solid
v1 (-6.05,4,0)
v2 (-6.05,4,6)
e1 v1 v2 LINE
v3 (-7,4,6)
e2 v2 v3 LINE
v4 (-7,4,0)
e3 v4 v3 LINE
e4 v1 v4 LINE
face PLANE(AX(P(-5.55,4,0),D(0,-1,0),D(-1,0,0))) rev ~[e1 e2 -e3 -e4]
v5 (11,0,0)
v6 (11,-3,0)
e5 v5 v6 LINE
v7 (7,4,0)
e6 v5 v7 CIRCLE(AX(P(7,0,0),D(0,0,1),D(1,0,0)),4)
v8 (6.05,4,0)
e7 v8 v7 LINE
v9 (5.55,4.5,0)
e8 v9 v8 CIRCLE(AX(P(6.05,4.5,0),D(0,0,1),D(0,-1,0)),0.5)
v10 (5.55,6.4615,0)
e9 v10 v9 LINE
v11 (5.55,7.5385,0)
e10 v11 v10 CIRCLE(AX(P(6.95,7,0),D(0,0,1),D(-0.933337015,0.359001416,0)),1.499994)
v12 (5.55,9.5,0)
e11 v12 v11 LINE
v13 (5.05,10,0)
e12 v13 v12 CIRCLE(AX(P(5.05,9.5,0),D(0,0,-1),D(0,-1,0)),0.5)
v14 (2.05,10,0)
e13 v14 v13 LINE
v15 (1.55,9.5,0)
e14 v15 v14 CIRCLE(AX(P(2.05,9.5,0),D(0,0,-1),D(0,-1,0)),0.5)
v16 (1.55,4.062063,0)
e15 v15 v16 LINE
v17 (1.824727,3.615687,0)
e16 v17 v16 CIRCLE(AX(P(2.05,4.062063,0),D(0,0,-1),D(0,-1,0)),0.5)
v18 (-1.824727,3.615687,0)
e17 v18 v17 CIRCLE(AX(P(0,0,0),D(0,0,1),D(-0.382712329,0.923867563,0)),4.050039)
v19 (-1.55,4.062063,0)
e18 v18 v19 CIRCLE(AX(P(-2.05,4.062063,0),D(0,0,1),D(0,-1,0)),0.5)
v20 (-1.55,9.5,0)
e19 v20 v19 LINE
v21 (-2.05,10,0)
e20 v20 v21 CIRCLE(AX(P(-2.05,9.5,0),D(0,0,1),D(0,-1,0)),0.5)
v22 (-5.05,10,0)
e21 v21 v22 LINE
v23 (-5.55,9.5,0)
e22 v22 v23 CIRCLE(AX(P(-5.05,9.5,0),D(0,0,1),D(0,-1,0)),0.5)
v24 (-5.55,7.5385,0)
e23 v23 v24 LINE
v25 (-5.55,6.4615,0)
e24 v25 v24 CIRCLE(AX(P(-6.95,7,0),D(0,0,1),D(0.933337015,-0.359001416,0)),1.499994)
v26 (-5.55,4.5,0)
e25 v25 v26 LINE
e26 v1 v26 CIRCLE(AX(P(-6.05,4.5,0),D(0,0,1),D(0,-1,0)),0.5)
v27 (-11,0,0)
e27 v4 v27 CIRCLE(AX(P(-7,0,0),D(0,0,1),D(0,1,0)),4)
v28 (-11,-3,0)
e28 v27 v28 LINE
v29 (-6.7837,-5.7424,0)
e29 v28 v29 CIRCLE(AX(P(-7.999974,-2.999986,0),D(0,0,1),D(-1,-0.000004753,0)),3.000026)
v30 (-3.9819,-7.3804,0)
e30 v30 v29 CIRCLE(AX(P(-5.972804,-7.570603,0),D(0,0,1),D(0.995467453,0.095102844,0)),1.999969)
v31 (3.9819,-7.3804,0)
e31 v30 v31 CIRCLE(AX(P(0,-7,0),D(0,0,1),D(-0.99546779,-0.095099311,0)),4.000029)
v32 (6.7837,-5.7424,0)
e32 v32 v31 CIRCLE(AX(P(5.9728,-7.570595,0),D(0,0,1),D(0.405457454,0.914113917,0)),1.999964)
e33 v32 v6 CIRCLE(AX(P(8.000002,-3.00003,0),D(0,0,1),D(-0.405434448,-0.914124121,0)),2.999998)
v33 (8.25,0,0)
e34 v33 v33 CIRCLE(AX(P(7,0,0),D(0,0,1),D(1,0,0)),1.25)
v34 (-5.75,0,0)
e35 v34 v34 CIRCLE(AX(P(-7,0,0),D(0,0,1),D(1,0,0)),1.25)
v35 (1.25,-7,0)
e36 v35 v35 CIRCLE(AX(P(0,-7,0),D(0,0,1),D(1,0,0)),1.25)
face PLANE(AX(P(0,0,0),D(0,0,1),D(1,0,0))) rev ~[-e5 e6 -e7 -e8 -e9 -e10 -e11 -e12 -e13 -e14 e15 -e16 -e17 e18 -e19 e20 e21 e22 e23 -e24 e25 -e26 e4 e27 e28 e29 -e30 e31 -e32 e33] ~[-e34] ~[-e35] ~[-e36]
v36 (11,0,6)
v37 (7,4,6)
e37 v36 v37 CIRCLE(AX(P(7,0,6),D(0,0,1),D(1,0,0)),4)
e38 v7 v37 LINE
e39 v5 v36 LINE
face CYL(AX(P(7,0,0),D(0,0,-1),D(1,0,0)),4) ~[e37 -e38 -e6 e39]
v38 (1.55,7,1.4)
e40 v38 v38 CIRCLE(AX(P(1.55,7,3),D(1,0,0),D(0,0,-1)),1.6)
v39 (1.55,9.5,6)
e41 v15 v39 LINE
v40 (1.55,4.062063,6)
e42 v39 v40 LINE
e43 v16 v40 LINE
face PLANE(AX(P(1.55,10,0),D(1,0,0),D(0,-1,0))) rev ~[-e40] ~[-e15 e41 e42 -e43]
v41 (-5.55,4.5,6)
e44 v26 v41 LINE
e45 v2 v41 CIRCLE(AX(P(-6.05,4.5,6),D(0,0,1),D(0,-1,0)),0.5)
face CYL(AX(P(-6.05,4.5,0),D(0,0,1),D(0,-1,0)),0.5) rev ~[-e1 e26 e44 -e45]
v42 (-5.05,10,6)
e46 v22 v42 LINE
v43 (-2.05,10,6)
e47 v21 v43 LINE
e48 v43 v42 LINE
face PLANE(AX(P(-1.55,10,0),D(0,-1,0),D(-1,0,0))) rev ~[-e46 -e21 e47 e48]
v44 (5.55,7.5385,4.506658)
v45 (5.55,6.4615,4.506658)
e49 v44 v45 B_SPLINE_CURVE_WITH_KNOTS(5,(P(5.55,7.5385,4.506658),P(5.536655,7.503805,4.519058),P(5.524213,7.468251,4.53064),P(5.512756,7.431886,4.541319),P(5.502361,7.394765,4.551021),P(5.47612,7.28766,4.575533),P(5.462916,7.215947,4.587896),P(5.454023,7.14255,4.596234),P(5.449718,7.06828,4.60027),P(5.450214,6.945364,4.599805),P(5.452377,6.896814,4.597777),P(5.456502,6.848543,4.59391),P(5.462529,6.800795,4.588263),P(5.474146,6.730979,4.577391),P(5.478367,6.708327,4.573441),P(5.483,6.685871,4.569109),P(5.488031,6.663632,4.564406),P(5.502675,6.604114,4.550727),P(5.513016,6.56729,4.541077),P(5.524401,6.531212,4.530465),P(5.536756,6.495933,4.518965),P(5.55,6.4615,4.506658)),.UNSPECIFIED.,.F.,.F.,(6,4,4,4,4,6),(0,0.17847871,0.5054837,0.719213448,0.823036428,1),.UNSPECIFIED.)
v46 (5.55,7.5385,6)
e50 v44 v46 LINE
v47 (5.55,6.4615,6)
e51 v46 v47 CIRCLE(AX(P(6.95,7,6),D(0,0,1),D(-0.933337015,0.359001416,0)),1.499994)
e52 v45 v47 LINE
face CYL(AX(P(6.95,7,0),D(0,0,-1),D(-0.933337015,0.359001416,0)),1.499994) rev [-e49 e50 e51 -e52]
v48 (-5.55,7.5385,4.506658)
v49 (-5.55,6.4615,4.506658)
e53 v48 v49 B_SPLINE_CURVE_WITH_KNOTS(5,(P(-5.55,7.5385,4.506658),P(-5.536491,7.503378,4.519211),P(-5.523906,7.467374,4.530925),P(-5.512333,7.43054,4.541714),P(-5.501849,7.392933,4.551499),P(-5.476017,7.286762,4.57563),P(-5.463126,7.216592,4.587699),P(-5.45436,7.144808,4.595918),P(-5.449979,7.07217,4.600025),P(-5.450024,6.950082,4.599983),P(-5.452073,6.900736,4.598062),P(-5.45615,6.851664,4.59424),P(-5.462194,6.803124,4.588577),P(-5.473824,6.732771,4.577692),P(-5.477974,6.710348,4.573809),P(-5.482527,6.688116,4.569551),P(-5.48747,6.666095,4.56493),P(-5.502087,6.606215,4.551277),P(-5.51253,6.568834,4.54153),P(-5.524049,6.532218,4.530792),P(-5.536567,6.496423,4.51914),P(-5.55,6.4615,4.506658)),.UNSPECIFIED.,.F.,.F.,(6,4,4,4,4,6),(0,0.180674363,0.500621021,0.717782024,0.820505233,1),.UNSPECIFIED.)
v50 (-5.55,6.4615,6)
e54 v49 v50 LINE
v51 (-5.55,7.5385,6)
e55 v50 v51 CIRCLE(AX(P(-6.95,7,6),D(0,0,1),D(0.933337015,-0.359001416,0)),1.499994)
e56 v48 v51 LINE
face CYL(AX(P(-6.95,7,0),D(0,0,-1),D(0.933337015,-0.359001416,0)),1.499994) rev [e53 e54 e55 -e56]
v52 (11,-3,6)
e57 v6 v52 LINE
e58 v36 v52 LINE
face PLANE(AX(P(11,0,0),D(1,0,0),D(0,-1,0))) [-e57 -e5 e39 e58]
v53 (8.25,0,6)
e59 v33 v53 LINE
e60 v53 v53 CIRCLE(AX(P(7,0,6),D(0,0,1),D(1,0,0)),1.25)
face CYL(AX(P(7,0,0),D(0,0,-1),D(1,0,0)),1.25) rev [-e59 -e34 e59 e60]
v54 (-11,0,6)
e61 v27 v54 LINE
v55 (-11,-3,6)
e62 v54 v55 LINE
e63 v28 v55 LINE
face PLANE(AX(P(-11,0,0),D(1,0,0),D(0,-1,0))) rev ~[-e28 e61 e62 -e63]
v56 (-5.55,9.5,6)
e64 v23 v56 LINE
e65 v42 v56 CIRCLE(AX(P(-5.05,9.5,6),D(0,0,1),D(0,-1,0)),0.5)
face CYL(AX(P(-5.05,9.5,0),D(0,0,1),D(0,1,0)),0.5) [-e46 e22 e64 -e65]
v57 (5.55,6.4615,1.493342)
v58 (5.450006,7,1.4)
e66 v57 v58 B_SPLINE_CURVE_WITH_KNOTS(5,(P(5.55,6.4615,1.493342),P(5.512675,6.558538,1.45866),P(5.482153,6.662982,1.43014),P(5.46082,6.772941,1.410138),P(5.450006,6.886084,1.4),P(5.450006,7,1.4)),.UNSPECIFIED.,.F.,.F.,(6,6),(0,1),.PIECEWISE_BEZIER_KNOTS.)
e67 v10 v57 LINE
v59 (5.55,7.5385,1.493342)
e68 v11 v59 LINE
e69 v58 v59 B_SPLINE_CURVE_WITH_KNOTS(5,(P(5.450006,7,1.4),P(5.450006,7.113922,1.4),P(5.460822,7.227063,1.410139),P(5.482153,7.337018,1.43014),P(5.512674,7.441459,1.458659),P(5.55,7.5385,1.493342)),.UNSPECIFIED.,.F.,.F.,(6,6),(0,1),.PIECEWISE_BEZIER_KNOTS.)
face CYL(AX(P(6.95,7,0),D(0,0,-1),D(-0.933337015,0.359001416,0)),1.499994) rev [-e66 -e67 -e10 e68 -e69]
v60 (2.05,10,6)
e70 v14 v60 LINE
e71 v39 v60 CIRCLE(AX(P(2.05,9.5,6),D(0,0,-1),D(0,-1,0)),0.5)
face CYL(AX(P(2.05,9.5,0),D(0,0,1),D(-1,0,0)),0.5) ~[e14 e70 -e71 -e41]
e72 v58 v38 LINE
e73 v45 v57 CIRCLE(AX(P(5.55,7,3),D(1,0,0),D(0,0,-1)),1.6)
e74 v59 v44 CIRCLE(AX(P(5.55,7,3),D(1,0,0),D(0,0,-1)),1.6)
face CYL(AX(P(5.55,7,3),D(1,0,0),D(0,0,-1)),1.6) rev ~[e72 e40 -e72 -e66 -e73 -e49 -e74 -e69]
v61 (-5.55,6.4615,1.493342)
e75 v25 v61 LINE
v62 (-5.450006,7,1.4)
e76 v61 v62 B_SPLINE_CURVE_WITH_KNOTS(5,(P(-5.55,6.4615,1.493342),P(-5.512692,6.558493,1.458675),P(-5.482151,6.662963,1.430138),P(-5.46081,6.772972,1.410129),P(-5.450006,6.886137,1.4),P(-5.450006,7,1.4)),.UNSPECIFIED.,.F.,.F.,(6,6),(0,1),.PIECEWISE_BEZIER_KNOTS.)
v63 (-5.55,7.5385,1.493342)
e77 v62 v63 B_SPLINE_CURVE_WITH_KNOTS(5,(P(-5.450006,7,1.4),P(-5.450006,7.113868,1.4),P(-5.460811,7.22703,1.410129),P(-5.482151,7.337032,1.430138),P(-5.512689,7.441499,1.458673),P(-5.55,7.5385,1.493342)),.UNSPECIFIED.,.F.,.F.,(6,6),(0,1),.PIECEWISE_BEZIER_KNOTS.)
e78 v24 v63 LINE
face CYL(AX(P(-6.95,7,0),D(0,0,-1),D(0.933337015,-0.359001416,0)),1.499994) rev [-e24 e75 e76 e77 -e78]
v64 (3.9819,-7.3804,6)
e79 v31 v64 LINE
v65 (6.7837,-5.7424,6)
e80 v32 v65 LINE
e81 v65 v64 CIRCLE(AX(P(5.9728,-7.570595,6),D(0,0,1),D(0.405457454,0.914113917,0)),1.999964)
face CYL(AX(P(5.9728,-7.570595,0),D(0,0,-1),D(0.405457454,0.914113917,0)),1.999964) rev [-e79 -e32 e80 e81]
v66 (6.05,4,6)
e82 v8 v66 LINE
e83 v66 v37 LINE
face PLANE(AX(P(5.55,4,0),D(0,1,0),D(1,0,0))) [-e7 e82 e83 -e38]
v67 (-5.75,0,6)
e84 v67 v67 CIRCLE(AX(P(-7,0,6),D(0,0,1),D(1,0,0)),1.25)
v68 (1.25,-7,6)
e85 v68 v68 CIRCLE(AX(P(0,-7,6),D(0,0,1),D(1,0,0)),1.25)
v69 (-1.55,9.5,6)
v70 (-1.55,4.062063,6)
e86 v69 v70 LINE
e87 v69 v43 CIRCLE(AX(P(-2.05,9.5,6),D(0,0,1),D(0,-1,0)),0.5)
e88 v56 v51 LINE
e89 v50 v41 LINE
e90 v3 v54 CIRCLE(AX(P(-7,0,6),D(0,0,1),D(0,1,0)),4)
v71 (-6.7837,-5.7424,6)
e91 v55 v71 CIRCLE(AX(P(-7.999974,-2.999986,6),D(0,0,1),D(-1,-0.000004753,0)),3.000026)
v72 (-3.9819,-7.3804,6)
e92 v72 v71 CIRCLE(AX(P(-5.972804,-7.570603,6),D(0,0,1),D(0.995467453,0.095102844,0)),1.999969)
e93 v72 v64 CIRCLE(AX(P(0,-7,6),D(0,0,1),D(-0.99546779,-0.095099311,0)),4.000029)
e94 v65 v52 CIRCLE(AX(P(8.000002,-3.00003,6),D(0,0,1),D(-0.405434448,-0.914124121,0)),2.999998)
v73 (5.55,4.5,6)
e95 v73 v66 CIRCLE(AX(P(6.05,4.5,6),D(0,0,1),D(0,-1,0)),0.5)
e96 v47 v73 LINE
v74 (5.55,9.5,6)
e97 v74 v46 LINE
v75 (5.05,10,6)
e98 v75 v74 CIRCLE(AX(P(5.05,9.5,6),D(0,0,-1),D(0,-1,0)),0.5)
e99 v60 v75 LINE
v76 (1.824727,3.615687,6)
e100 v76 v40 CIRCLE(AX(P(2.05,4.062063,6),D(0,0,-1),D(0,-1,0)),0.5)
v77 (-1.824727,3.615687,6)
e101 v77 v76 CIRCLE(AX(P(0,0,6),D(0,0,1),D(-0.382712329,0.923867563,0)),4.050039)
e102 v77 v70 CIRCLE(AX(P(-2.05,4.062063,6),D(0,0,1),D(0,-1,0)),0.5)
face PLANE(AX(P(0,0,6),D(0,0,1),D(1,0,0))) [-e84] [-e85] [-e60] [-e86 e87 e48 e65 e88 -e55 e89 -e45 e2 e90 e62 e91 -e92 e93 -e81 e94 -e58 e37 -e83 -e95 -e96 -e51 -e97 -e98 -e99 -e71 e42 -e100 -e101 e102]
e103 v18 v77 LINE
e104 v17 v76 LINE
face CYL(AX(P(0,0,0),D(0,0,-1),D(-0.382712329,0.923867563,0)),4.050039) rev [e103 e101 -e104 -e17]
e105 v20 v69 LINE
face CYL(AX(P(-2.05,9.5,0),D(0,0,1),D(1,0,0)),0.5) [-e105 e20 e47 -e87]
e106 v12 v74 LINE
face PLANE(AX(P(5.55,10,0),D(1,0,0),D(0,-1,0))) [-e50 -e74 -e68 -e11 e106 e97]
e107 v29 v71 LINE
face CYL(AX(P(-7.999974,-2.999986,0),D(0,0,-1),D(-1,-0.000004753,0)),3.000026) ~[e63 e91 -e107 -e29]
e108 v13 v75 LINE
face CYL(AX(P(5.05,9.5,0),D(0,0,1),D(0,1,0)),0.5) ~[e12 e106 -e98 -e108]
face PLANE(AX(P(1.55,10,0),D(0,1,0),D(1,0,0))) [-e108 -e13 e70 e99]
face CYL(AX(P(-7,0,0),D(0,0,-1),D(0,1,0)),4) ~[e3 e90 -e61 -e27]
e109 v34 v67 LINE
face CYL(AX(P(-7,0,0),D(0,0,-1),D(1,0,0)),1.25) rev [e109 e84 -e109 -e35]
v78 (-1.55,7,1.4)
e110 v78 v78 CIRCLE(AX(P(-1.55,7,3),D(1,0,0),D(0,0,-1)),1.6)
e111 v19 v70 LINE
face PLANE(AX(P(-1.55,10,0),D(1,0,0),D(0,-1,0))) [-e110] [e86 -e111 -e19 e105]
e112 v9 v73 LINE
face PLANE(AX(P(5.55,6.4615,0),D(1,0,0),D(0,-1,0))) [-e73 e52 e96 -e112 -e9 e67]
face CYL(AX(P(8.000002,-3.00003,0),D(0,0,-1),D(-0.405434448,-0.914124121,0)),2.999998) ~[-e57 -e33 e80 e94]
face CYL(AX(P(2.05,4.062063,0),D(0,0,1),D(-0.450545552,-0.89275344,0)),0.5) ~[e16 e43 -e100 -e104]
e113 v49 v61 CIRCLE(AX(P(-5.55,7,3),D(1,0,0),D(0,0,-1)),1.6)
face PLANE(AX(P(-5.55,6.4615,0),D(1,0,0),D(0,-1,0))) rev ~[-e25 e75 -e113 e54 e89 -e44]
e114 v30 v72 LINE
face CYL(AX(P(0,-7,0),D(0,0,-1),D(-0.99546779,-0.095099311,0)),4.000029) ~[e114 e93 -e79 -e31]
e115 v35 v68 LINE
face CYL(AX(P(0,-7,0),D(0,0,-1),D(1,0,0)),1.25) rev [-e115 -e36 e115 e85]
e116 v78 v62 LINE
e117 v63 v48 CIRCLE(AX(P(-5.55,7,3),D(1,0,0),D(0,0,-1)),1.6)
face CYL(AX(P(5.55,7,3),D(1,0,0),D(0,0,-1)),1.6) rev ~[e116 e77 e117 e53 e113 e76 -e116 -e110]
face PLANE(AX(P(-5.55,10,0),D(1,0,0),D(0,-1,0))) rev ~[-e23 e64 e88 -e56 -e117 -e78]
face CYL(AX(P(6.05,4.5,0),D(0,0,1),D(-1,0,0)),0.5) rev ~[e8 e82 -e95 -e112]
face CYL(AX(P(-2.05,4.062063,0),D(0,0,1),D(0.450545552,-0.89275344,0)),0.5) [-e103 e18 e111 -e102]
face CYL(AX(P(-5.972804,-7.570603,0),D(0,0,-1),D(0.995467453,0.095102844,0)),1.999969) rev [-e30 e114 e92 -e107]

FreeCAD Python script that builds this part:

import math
import FreeCAD as App
import Part
import Sketcher
from FreeCAD import Vector


def edges_at(feature, points):
    """Names of the edges that pass closest to the given points."""
    edges = feature.Shape.Edges
    near = lambda p: min(range(len(edges)), key=lambda i: edges[i].distToShape(Part.Vertex(*p))[0])
    return sorted({f"Edge{near(p) + 1}" for p in points})

doc = App.newDocument("Part")
params = doc.addObject("Spreadsheet::Sheet", "Params")
for row, (alias, value) in enumerate([
    ("sketch1_radius", "4 mm"),
    ("sketch1_radius2", "3 mm"),
    ("sketch1_radius3", "2 mm"),
    ("sketch1_diameter", "2.5 mm"),
    ("sketch1_radius4", "1.5 mm"),
    ("pad1_length", "6 mm"),
    ("sketch2_diameter", "3.2 mm"),
    ("fillet_radius", "0.5 mm"),
], start=1):
    params.set(f"A{row}", alias)
    params.set(f"B{row}", "=" + value)
    params.setAlias(f"B{row}", alias)

body = doc.addObject("PartDesign::Body", "Body")

sketch1 = doc.addObject("Sketcher::SketchObject", "Sketch")
body.addObject(sketch1)
sketch1.AttachmentSupport = (doc.XY_Plane, [""])
sketch1.MapMode = "FlatFace"
sketch1.addGeometry(Part.ArcOfCircle(Part.Circle(Vector(0, 0, 0), Vector(0, 0, 1), 4.050039), math.radians(112.501792), math.radians(427.498208)), False)
sketch1.addGeometry(Part.LineSegment(Vector(-1.55, 3.7417, 0), Vector(-1.55, 10, 0)), False)
sketch1.addGeometry(Part.LineSegment(Vector(-1.55, 10, 0), Vector(-5.55, 10, 0)), False)
sketch1.addGeometry(Part.LineSegment(Vector(-5.55, 10, 0), Vector(-5.55, 7.5385, 0)), False)
sketch1.addGeometry(Part.ArcOfCircle(Part.Circle(Vector(-6.95, 7, 0), Vector(0, 0, 1), 1.499994), math.radians(-21.038882), math.radians(21.038882)), False)
sketch1.addGeometry(Part.LineSegment(Vector(-5.55, 6.4615, 0), Vector(-5.55, 4, 0)), False)
sketch1.addGeometry(Part.LineSegment(Vector(-5.55, 4, 0), Vector(-7, 4, 0)), False)
sketch1.addGeometry(Part.ArcOfCircle(Part.Circle(Vector(-7, 0, 0), Vector(0, 0, 1), 4), math.radians(90), math.radians(180)), False)
sketch1.addGeometry(Part.LineSegment(Vector(-11, 0, 0), Vector(-11, -3, 0)), False)
sketch1.addGeometry(Part.ArcOfCircle(Part.Circle(Vector(-8, -3, 0), Vector(0, 0, 1), 3), math.radians(180), math.radians(293.918082)), False)
sketch1.addGeometry(Part.ArcOfCircle(Part.Circle(Vector(-5.9728, -7.5706, 0), Vector(0, 0, 1), 1.999965), math.radians(5.457172), math.radians(113.91973)), False)
sketch1.addGeometry(Part.ArcOfCircle(Part.Circle(Vector(0, -7, 0), Vector(0, 0, 1), 4.000029), math.radians(-174.542964), math.radians(-5.457036)), False)
sketch1.addGeometry(Part.ArcOfCircle(Part.Circle(Vector(5.9728, -7.5706, 0), Vector(0, 0, 1), 1.999969), math.radians(66.08027), math.radians(174.542828)), False)
sketch1.addGeometry(Part.ArcOfCircle(Part.Circle(Vector(8, -3, 0), Vector(0, 0, 1), 3.000024), math.radians(-113.918082), math.radians(0)), False)
sketch1.addGeometry(Part.LineSegment(Vector(11, -3, 0), Vector(11, 0, 0)), False)
sketch1.addGeometry(Part.ArcOfCircle(Part.Circle(Vector(7, 0, 0), Vector(0, 0, 1), 4), math.radians(0), math.radians(90)), False)
sketch1.addGeometry(Part.LineSegment(Vector(7, 4, 0), Vector(5.55, 4, 0)), False)
sketch1.addGeometry(Part.LineSegment(Vector(5.55, 4, 0), Vector(5.55, 6.4615, 0)), False)
sketch1.addGeometry(Part.ArcOfCircle(Part.Circle(Vector(6.95, 7, 0), Vector(0, 0, 1), 1.499994), math.radians(158.961118), math.radians(201.038882)), False)
sketch1.addGeometry(Part.LineSegment(Vector(5.55, 7.5385, 0), Vector(5.55, 10, 0)), False)
sketch1.addGeometry(Part.LineSegment(Vector(5.55, 10, 0), Vector(1.55, 10, 0)), False)
sketch1.addGeometry(Part.LineSegment(Vector(1.55, 10, 0), Vector(1.55, 3.7417, 0)), False)
sketch1.addGeometry(Part.Circle(Vector(0, -7, 0), Vector(0, 0, 1), 1.25), False)
sketch1.addGeometry(Part.Circle(Vector(-7, 0, 0), Vector(0, 0, 1), 1.25), False)
sketch1.addGeometry(Part.Circle(Vector(7, 0, 0), Vector(0, 0, 1), 1.25), False)
sketch1.addConstraint(Sketcher.Constraint("Coincident", 0, 1, 1, 1))
sketch1.addConstraint(Sketcher.Constraint("Coincident", 1, 2, 2, 1))
sketch1.addConstraint(Sketcher.Constraint("Coincident", 2, 2, 3, 1))
sketch1.addConstraint(Sketcher.Constraint("Coincident", 3, 2, 4, 2))
sketch1.addConstraint(Sketcher.Constraint("Coincident", 4, 1, 5, 1))
sketch1.addConstraint(Sketcher.Constraint("Coincident", 5, 2, 6, 1))
sketch1.addConstraint(Sketcher.Constraint("Tangent", 6, 2, 7, 1))
sketch1.addConstraint(Sketcher.Constraint("Tangent", 7, 2, 8, 1))
sketch1.addConstraint(Sketcher.Constraint("Tangent", 8, 2, 9, 1))
sketch1.addConstraint(Sketcher.Constraint("Tangent", 9, 2, 10, 2))
sketch1.addConstraint(Sketcher.Constraint("Tangent", 10, 1, 11, 1))
sketch1.addConstraint(Sketcher.Constraint("Tangent", 11, 2, 12, 2))
sketch1.addConstraint(Sketcher.Constraint("Tangent", 12, 1, 13, 1))
sketch1.addConstraint(Sketcher.Constraint("Tangent", 13, 2, 14, 1))
sketch1.addConstraint(Sketcher.Constraint("Tangent", 14, 2, 15, 1))
sketch1.addConstraint(Sketcher.Constraint("Tangent", 15, 2, 16, 1))
sketch1.addConstraint(Sketcher.Constraint("Coincident", 16, 2, 17, 1))
sketch1.addConstraint(Sketcher.Constraint("Coincident", 17, 2, 18, 2))
sketch1.addConstraint(Sketcher.Constraint("Coincident", 18, 1, 19, 1))
sketch1.addConstraint(Sketcher.Constraint("Coincident", 19, 2, 20, 1))
sketch1.addConstraint(Sketcher.Constraint("Coincident", 20, 2, 21, 1))
sketch1.addConstraint(Sketcher.Constraint("Coincident", 21, 2, 0, 2))
sketch1.addConstraint(Sketcher.Constraint("Vertical", 1))
sketch1.addConstraint(Sketcher.Constraint("Horizontal", 2))
sketch1.addConstraint(Sketcher.Constraint("Vertical", 3))
sketch1.addConstraint(Sketcher.Constraint("Vertical", 5))
sketch1.addConstraint(Sketcher.Constraint("Horizontal", 6))
sketch1.addConstraint(Sketcher.Constraint("Vertical", 8))
sketch1.addConstraint(Sketcher.Constraint("Vertical", 14))
sketch1.addConstraint(Sketcher.Constraint("Horizontal", 16))
sketch1.addConstraint(Sketcher.Constraint("Vertical", 17))
sketch1.addConstraint(Sketcher.Constraint("Vertical", 19))
sketch1.addConstraint(Sketcher.Constraint("Horizontal", 20))
sketch1.addConstraint(Sketcher.Constraint("Vertical", 21))
sketch1.addConstraint(Sketcher.Constraint("Coincident", 0, 3, -1, 1))
sketch1.addConstraint(Sketcher.Constraint("Coincident", 22, 3, 11, 3))
sketch1.addConstraint(Sketcher.Constraint("Coincident", 23, 3, 7, 3))
sketch1.addConstraint(Sketcher.Constraint("Coincident", 24, 3, 15, 3))
sketch1.addConstraint(Sketcher.Constraint("Equal", 7, 11))
sketch1.addConstraint(Sketcher.Constraint("Equal", 10, 12))
sketch1.addConstraint(Sketcher.Constraint("Equal", 9, 13))
sketch1.addConstraint(Sketcher.Constraint("Equal", 11, 15))
sketch1.addConstraint(Sketcher.Constraint("Equal", 4, 18))
sketch1.addConstraint(Sketcher.Constraint("Equal", 22, 23))
sketch1.addConstraint(Sketcher.Constraint("Equal", 23, 24))
sketch1.addConstraint(Sketcher.Constraint("Symmetric", 7, 3, 15, 3, -1, 1))
sketch1.addConstraint(Sketcher.Constraint("Symmetric", 10, 3, 12, 3, -2))
sketch1.addConstraint(Sketcher.Constraint("Symmetric", 4, 3, 18, 3, -2))
sketch1.addConstraint(Sketcher.Constraint("Symmetric", 5, 2, 16, 2, -2))
sketch1.addConstraint(Sketcher.Constraint("Symmetric", 2, 2, 19, 2, -2))
sketch1.addConstraint(Sketcher.Constraint("Horizontal", 0, 1, 21, 2))
sketch1.addConstraint(Sketcher.Constraint("Vertical", 3, 2, 4, 1))
sketch1.addConstraint(Sketcher.Constraint("Equal", 3, 5))
sketch1.addConstraint(Sketcher.Constraint("Radius", 7, 4.0))
sketch1.addConstraint(Sketcher.Constraint("Radius", 9, 3.0))
sketch1.addConstraint(Sketcher.Constraint("Radius", 10, 2.0))
sketch1.addConstraint(Sketcher.Constraint("Diameter", 22, 2.5))
sketch1.addConstraint(Sketcher.Constraint("Radius", 4, 1.5))
sketch1.addConstraint(Sketcher.Constraint("DistanceX", 2, 2, 2, 1, 4.0))
sketch1.addConstraint(Sketcher.Constraint("DistanceY", 8, 2, 8, 1, 3.0))
sketch1.addConstraint(Sketcher.Constraint("Radius", 0, 4.05))
sketch1.addConstraint(Sketcher.Constraint("DistanceY", -1, 1, 4, 3, 7.0))
sketch1.addConstraint(Sketcher.Constraint("DistanceX", 7, 3, -1, 1, 7.0))
sketch1.addConstraint(Sketcher.Constraint("DistanceY", 11, 3, -1, 1, 7.0))
sketch1.addConstraint(Sketcher.Constraint("DistanceX", 4, 3, 2, 2, 1.4))
sketch1.addConstraint(Sketcher.Constraint("DistanceX", 1, 2, 20, 2, 3.1))
sketch1.setExpression("Constraints[53]", "Params.sketch1_radius")
sketch1.setExpression("Constraints[54]", "Params.sketch1_radius2")
sketch1.setExpression("Constraints[55]", "Params.sketch1_radius3")
sketch1.setExpression("Constraints[56]", "Params.sketch1_diameter")
sketch1.setExpression("Constraints[57]", "Params.sketch1_radius4")
pad1 = doc.addObject("PartDesign::Pad", "Pad")
body.addObject(pad1)
pad1.Profile = sketch1
pad1.setExpression("Length", "Params.pad1_length")

sketch2 = doc.addObject("Sketcher::SketchObject", "Sketch001")
body.addObject(sketch2)
sketch2.AttachmentSupport = (doc.YZ_Plane, [""])
sketch2.MapMode = "FlatFace"
sketch2.AttachmentOffset = App.Placement(Vector(0, 0, 5.55), App.Rotation())
sketch2.addGeometry(Part.Circle(Vector(7, 3, 0), Vector(0, 0, 1), 1.6), False)
sketch2.addConstraint(Sketcher.Constraint("Diameter", 0, 3.2))
sketch2.addConstraint(Sketcher.Constraint("DistanceY", -1, 1, 0, 3, 3.0))
sketch2.addConstraint(Sketcher.Constraint("DistanceX", -1, 1, 0, 3, 7.0))
sketch2.setExpression("Constraints[0]", "Params.sketch2_diameter")
pocket1 = doc.addObject("PartDesign::Pocket", "Pocket")
body.addObject(pocket1)
pocket1.Profile = sketch2
pocket1.Type = "ThroughAll"
doc.recompute()

fillet = doc.addObject("PartDesign::Fillet", "Fillet")
body.addObject(fillet)
fillet.Base = (pocket1, edges_at(pocket1, [
    (-5.55, 10, 3),
    (-1.55, 10, 3),
    (1.55, 10, 3),
    (5.55, 10, 3),
    (5.55, 4, 3),
    (-5.55, 4, 3),
    (-1.55, 3.742, 3),
    (1.55, 3.742, 3),
]))
fillet.setExpression("Radius", "Params.fillet_radius")

doc.recompute()
